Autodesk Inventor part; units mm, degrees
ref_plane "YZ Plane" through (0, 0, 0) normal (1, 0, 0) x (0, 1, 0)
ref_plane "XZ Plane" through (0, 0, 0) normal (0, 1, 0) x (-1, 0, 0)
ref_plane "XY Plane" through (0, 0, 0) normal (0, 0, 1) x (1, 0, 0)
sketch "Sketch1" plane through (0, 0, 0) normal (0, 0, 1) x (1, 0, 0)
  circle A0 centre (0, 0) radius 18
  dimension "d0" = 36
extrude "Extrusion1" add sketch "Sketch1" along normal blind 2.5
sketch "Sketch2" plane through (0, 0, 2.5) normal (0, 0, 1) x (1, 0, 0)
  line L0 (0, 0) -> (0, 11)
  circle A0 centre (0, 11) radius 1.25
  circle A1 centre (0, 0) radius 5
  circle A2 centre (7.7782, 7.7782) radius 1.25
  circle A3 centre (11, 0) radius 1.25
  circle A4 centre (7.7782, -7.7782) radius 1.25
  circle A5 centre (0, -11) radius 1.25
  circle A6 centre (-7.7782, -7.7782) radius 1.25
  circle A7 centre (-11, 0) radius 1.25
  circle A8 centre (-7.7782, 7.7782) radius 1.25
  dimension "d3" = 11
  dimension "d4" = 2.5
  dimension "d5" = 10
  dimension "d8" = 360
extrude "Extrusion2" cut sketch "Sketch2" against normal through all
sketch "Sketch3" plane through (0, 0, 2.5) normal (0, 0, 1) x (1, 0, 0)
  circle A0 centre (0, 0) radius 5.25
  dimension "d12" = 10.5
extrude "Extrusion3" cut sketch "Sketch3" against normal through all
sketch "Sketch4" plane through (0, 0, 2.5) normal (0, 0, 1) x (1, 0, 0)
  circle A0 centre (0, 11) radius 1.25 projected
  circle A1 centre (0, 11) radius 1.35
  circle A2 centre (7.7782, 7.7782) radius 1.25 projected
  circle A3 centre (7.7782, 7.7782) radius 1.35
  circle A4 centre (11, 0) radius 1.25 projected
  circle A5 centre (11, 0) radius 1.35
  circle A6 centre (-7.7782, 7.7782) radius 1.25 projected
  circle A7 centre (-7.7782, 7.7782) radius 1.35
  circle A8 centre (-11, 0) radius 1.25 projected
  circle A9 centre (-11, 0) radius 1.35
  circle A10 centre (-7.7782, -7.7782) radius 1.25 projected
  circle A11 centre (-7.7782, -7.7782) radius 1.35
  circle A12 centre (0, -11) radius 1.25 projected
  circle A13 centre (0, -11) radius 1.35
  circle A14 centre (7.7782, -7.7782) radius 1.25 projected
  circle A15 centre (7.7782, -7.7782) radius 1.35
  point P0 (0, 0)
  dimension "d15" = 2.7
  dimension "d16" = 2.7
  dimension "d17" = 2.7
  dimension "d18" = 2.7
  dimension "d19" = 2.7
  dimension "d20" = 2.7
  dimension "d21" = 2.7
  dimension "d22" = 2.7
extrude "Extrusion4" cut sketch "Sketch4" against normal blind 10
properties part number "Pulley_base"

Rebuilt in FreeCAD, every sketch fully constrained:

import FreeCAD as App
import Part
import Sketcher
Q = App.Units.Quantity

doc = App.newDocument("Part")
body = doc.addObject("PartDesign::Body", "Body")

sketch1 = body.newObject("Sketcher::SketchObject", "Sketch")
sketch1.AttachmentSupport = (doc.getObject("XY_Plane"), [""])
sketch1.MapMode = "FlatFace"
sketch1.addGeometry(Part.Circle(App.Vector(0, 0, 0), App.Vector(0, 0, 1), 18), False)
sketch1.addConstraint(Sketcher.Constraint("Coincident", 0, 3, -1, 1))
sketch1.addConstraint(Sketcher.Constraint("Diameter", 0, Q("36 mm")))
pad1 = body.newObject("PartDesign::Pad", "Pad")
pad1.Profile = sketch1
pad1.Length = 2.5

sketch2 = body.newObject("Sketcher::SketchObject", "Sketch001")
sketch2.AttachmentSupport = (doc.getObject("XY_Plane"), [""])
sketch2.MapMode = "FlatFace"
sketch2.AttachmentOffset = App.Placement(App.Vector(0, 0, 2.5), App.Rotation())
sketch2.addGeometry(Part.Circle(App.Vector(0, 11, 0), App.Vector(0, 0, 1), 1.2), False)
sketch2.addGeometry(Part.Circle(App.Vector(0, 0, 0), App.Vector(0, 0, 1), 5), False)
sketch2.addGeometry(Part.Circle(App.Vector(7.8, 7.8, 0), App.Vector(0, 0, 1), 1.2), False)
sketch2.addGeometry(Part.Circle(App.Vector(11, 0, 0), App.Vector(0, 0, 1), 1.2), False)
sketch2.addGeometry(Part.Circle(App.Vector(7.8, -7.8, 0), App.Vector(0, 0, 1), 1.2), False)
sketch2.addGeometry(Part.Circle(App.Vector(0, -11, 0), App.Vector(0, 0, 1), 1.2), False)
sketch2.addGeometry(Part.Circle(App.Vector(-7.8, -7.8, 0), App.Vector(0, 0, 1), 1.2), False)
sketch2.addGeometry(Part.Circle(App.Vector(-11, 0, 0), App.Vector(0, 0, 1), 1.2), False)
sketch2.addGeometry(Part.Circle(App.Vector(-7.8, 7.8, 0), App.Vector(0, 0, 1), 1.2), False)
sketch2.addConstraint(Sketcher.Constraint("Coincident", 1, 3, -1, 1))
sketch2.addConstraint(Sketcher.Constraint("Equal", 0, 2))
sketch2.addConstraint(Sketcher.Constraint("Equal", 2, 3))
sketch2.addConstraint(Sketcher.Constraint("Equal", 3, 4))
sketch2.addConstraint(Sketcher.Constraint("Equal", 4, 5))
sketch2.addConstraint(Sketcher.Constraint("Equal", 5, 6))
sketch2.addConstraint(Sketcher.Constraint("Equal", 6, 7))
sketch2.addConstraint(Sketcher.Constraint("Equal", 7, 8))
sketch2.addConstraint(Sketcher.Constraint("Symmetric", 0, 3, 5, 3, -1, 1))
sketch2.addConstraint(Sketcher.Constraint("Symmetric", 2, 3, 6, 3, -1, 1))
sketch2.addConstraint(Sketcher.Constraint("Symmetric", 3, 3, 7, 3, -1, 1))
sketch2.addConstraint(Sketcher.Constraint("Symmetric", 4, 3, 8, 3, -1, 1))
sketch2.addConstraint(Sketcher.Constraint("Symmetric", 4, 3, 6, 3, -2))
sketch2.addConstraint(Sketcher.Constraint("PointOnObject", 0, 3, -2))
sketch2.addConstraint(Sketcher.Constraint("PointOnObject", 3, 3, -1))
sketch2.addConstraint(Sketcher.Constraint("Diameter", 1, Q("10 mm")))
sketch2.addConstraint(Sketcher.Constraint("Diameter", 0, Q("2.5 mm")))
sketch2.addConstraint(Sketcher.Constraint("DistanceY", -1, 1, 0, 3, Q("11 mm")))
sketch2.addConstraint(Sketcher.Constraint("DistanceX", -1, 1, 3, 3, Q("11 mm")))
sketch2.addConstraint(Sketcher.Constraint("DistanceX", -1, 1, 2, 3, Q("7.7782 mm")))
sketch2.addConstraint(Sketcher.Constraint("DistanceY", -1, 1, 2, 3, Q("7.7782 mm")))
pocket1 = body.newObject("PartDesign::Pocket", "Pocket")
pocket1.Profile = sketch2
pocket1.Type = "ThroughAll"

sketch3 = body.newObject("Sketcher::SketchObject", "Sketch002")
sketch3.AttachmentSupport = (doc.getObject("XY_Plane"), [""])
sketch3.MapMode = "FlatFace"
sketch3.AttachmentOffset = App.Placement(App.Vector(0, 0, 2.5), App.Rotation())
sketch3.addGeometry(Part.Circle(App.Vector(0, 0, 0), App.Vector(0, 0, 1), 5), False)
sketch3.addConstraint(Sketcher.Constraint("Coincident", 0, 3, -1, 1))
sketch3.addConstraint(Sketcher.Constraint("Diameter", 0, Q("10.5 mm")))
pocket2 = body.newObject("PartDesign::Pocket", "Pocket001")
pocket2.Profile = sketch3
pocket2.Type = "ThroughAll"

sketch4 = body.newObject("Sketcher::SketchObject", "Sketch003")
sketch4.AttachmentSupport = (doc.getObject("XY_Plane"), [""])
sketch4.MapMode = "FlatFace"
sketch4.AttachmentOffset = App.Placement(App.Vector(0, 0, 2.5), App.Rotation())
sketch4.addGeometry(Part.Circle(App.Vector(0, 11, 0), App.Vector(0, 0, 1), 1.4), False)
sketch4.addGeometry(Part.Circle(App.Vector(0, 11, 0), App.Vector(0, 0, 1), 1.2), False)
sketch4.addGeometry(Part.Circle(App.Vector(7.8, 7.8, 0), App.Vector(0, 0, 1), 1.4), False)
sketch4.addGeometry(Part.Circle(App.Vector(7.8, 7.8, 0), App.Vector(0, 0, 1), 1.2), False)
sketch4.addGeometry(Part.Circle(App.Vector(11, 0, 0), App.Vector(0, 0, 1), 1.4), False)
sketch4.addGeometry(Part.Circle(App.Vector(11, 0, 0), App.Vector(0, 0, 1), 1.2), False)
sketch4.addGeometry(Part.Circle(App.Vector(-7.8, 7.8, 0), App.Vector(0, 0, 1), 1.4), False)
sketch4.addGeometry(Part.Circle(App.Vector(-7.8, 7.8, 0), App.Vector(0, 0, 1), 1.2), False)
sketch4.addGeometry(Part.Circle(App.Vector(-11, 0, 0), App.Vector(0, 0, 1), 1.4), False)
sketch4.addGeometry(Part.Circle(App.Vector(-11, 0, 0), App.Vector(0, 0, 1), 1.2), False)
sketch4.addGeometry(Part.Circle(App.Vector(-7.8, -7.8, 0), App.Vector(0, 0, 1), 1.4), False)
sketch4.addGeometry(Part.Circle(App.Vector(-7.8, -7.8, 0), App.Vector(0, 0, 1), 1.2), False)
sketch4.addGeometry(Part.Circle(App.Vector(0, -11, 0), App.Vector(0, 0, 1), 1.4), False)
sketch4.addGeometry(Part.Circle(App.Vector(0, -11, 0), App.Vector(0, 0, 1), 1.2), False)
sketch4.addGeometry(Part.Circle(App.Vector(7.8, -7.8, 0), App.Vector(0, 0, 1), 1.4), False)
sketch4.addGeometry(Part.Circle(App.Vector(7.8, -7.8, 0), App.Vector(0, 0, 1), 1.2), False)
sketch4.addConstraint(Sketcher.Constraint("Coincident", 1, 3, 0, 3))
sketch4.addConstraint(Sketcher.Constraint("Coincident", 3, 3, 2, 3))
sketch4.addConstraint(Sketcher.Constraint("Coincident", 5, 3, 4, 3))
sketch4.addConstraint(Sketcher.Constraint("Coincident", 7, 3, 6, 3))
sketch4.addConstraint(Sketcher.Constraint("Coincident", 9, 3, 8, 3))
sketch4.addConstraint(Sketcher.Constraint("Coincident", 11, 3, 10, 3))
sketch4.addConstraint(Sketcher.Constraint("Coincident", 13, 3, 12, 3))
sketch4.addConstraint(Sketcher.Constraint("Coincident", 15, 3, 14, 3))
sketch4.addConstraint(Sketcher.Constraint("Equal", 0, 2))
sketch4.addConstraint(Sketcher.Constraint("Equal", 1, 3))
sketch4.addConstraint(Sketcher.Constraint("Equal", 2, 4))
sketch4.addConstraint(Sketcher.Constraint("Equal", 3, 5))
sketch4.addConstraint(Sketcher.Constraint("Equal", 4, 6))
sketch4.addConstraint(Sketcher.Constraint("Equal", 5, 7))
sketch4.addConstraint(Sketcher.Constraint("Equal", 6, 8))
sketch4.addConstraint(Sketcher.Constraint("Equal", 7, 9))
sketch4.addConstraint(Sketcher.Constraint("Equal", 8, 10))
sketch4.addConstraint(Sketcher.Constraint("Equal", 9, 11))
sketch4.addConstraint(Sketcher.Constraint("Equal", 10, 12))
sketch4.addConstraint(Sketcher.Constraint("Equal", 11, 13))
sketch4.addConstraint(Sketcher.Constraint("Equal", 12, 14))
sketch4.addConstraint(Sketcher.Constraint("Equal", 13, 15))
sketch4.addConstraint(Sketcher.Constraint("Symmetric", 4, 3, 8, 3, -1, 1))
sketch4.addConstraint(Sketcher.Constraint("Symmetric", 2, 3, 10, 3, -1, 1))
sketch4.addConstraint(Sketcher.Constraint("Symmetric", 0, 3, 12, 3, -1, 1))
sketch4.addConstraint(Sketcher.Constraint("Symmetric", 6, 3, 14, 3, -1, 1))
sketch4.addConstraint(Sketcher.Constraint("Symmetric", 2, 3, 6, 3, -2))
sketch4.addConstraint(Sketcher.Constraint("PointOnObject", 0, 3, -2))
sketch4.addConstraint(Sketcher.Constraint("PointOnObject", 4, 3, -1))
sketch4.addConstraint(Sketcher.Constraint("Diameter", 0, Q("2.7 mm")))
sketch4.addConstraint(Sketcher.Constraint("Diameter", 1, Q("2.5 mm")))
sketch4.addConstraint(Sketcher.Constraint("DistanceY", -1, 1, 0, 3, Q("11 mm")))
sketch4.addConstraint(Sketcher.Constraint("DistanceX", -1, 1, 4, 3, Q("11 mm")))
sketch4.addConstraint(Sketcher.Constraint("DistanceX", -1, 1, 2, 3, Q("7.7782 mm")))
sketch4.addConstraint(Sketcher.Constraint("DistanceY", -1, 1, 2, 3, Q("7.7782 mm")))
pocket3 = body.newObject("PartDesign::Pocket", "Pocket002")
pocket3.Profile = sketch4
pocket3.Length = 10

doc.recompute()
